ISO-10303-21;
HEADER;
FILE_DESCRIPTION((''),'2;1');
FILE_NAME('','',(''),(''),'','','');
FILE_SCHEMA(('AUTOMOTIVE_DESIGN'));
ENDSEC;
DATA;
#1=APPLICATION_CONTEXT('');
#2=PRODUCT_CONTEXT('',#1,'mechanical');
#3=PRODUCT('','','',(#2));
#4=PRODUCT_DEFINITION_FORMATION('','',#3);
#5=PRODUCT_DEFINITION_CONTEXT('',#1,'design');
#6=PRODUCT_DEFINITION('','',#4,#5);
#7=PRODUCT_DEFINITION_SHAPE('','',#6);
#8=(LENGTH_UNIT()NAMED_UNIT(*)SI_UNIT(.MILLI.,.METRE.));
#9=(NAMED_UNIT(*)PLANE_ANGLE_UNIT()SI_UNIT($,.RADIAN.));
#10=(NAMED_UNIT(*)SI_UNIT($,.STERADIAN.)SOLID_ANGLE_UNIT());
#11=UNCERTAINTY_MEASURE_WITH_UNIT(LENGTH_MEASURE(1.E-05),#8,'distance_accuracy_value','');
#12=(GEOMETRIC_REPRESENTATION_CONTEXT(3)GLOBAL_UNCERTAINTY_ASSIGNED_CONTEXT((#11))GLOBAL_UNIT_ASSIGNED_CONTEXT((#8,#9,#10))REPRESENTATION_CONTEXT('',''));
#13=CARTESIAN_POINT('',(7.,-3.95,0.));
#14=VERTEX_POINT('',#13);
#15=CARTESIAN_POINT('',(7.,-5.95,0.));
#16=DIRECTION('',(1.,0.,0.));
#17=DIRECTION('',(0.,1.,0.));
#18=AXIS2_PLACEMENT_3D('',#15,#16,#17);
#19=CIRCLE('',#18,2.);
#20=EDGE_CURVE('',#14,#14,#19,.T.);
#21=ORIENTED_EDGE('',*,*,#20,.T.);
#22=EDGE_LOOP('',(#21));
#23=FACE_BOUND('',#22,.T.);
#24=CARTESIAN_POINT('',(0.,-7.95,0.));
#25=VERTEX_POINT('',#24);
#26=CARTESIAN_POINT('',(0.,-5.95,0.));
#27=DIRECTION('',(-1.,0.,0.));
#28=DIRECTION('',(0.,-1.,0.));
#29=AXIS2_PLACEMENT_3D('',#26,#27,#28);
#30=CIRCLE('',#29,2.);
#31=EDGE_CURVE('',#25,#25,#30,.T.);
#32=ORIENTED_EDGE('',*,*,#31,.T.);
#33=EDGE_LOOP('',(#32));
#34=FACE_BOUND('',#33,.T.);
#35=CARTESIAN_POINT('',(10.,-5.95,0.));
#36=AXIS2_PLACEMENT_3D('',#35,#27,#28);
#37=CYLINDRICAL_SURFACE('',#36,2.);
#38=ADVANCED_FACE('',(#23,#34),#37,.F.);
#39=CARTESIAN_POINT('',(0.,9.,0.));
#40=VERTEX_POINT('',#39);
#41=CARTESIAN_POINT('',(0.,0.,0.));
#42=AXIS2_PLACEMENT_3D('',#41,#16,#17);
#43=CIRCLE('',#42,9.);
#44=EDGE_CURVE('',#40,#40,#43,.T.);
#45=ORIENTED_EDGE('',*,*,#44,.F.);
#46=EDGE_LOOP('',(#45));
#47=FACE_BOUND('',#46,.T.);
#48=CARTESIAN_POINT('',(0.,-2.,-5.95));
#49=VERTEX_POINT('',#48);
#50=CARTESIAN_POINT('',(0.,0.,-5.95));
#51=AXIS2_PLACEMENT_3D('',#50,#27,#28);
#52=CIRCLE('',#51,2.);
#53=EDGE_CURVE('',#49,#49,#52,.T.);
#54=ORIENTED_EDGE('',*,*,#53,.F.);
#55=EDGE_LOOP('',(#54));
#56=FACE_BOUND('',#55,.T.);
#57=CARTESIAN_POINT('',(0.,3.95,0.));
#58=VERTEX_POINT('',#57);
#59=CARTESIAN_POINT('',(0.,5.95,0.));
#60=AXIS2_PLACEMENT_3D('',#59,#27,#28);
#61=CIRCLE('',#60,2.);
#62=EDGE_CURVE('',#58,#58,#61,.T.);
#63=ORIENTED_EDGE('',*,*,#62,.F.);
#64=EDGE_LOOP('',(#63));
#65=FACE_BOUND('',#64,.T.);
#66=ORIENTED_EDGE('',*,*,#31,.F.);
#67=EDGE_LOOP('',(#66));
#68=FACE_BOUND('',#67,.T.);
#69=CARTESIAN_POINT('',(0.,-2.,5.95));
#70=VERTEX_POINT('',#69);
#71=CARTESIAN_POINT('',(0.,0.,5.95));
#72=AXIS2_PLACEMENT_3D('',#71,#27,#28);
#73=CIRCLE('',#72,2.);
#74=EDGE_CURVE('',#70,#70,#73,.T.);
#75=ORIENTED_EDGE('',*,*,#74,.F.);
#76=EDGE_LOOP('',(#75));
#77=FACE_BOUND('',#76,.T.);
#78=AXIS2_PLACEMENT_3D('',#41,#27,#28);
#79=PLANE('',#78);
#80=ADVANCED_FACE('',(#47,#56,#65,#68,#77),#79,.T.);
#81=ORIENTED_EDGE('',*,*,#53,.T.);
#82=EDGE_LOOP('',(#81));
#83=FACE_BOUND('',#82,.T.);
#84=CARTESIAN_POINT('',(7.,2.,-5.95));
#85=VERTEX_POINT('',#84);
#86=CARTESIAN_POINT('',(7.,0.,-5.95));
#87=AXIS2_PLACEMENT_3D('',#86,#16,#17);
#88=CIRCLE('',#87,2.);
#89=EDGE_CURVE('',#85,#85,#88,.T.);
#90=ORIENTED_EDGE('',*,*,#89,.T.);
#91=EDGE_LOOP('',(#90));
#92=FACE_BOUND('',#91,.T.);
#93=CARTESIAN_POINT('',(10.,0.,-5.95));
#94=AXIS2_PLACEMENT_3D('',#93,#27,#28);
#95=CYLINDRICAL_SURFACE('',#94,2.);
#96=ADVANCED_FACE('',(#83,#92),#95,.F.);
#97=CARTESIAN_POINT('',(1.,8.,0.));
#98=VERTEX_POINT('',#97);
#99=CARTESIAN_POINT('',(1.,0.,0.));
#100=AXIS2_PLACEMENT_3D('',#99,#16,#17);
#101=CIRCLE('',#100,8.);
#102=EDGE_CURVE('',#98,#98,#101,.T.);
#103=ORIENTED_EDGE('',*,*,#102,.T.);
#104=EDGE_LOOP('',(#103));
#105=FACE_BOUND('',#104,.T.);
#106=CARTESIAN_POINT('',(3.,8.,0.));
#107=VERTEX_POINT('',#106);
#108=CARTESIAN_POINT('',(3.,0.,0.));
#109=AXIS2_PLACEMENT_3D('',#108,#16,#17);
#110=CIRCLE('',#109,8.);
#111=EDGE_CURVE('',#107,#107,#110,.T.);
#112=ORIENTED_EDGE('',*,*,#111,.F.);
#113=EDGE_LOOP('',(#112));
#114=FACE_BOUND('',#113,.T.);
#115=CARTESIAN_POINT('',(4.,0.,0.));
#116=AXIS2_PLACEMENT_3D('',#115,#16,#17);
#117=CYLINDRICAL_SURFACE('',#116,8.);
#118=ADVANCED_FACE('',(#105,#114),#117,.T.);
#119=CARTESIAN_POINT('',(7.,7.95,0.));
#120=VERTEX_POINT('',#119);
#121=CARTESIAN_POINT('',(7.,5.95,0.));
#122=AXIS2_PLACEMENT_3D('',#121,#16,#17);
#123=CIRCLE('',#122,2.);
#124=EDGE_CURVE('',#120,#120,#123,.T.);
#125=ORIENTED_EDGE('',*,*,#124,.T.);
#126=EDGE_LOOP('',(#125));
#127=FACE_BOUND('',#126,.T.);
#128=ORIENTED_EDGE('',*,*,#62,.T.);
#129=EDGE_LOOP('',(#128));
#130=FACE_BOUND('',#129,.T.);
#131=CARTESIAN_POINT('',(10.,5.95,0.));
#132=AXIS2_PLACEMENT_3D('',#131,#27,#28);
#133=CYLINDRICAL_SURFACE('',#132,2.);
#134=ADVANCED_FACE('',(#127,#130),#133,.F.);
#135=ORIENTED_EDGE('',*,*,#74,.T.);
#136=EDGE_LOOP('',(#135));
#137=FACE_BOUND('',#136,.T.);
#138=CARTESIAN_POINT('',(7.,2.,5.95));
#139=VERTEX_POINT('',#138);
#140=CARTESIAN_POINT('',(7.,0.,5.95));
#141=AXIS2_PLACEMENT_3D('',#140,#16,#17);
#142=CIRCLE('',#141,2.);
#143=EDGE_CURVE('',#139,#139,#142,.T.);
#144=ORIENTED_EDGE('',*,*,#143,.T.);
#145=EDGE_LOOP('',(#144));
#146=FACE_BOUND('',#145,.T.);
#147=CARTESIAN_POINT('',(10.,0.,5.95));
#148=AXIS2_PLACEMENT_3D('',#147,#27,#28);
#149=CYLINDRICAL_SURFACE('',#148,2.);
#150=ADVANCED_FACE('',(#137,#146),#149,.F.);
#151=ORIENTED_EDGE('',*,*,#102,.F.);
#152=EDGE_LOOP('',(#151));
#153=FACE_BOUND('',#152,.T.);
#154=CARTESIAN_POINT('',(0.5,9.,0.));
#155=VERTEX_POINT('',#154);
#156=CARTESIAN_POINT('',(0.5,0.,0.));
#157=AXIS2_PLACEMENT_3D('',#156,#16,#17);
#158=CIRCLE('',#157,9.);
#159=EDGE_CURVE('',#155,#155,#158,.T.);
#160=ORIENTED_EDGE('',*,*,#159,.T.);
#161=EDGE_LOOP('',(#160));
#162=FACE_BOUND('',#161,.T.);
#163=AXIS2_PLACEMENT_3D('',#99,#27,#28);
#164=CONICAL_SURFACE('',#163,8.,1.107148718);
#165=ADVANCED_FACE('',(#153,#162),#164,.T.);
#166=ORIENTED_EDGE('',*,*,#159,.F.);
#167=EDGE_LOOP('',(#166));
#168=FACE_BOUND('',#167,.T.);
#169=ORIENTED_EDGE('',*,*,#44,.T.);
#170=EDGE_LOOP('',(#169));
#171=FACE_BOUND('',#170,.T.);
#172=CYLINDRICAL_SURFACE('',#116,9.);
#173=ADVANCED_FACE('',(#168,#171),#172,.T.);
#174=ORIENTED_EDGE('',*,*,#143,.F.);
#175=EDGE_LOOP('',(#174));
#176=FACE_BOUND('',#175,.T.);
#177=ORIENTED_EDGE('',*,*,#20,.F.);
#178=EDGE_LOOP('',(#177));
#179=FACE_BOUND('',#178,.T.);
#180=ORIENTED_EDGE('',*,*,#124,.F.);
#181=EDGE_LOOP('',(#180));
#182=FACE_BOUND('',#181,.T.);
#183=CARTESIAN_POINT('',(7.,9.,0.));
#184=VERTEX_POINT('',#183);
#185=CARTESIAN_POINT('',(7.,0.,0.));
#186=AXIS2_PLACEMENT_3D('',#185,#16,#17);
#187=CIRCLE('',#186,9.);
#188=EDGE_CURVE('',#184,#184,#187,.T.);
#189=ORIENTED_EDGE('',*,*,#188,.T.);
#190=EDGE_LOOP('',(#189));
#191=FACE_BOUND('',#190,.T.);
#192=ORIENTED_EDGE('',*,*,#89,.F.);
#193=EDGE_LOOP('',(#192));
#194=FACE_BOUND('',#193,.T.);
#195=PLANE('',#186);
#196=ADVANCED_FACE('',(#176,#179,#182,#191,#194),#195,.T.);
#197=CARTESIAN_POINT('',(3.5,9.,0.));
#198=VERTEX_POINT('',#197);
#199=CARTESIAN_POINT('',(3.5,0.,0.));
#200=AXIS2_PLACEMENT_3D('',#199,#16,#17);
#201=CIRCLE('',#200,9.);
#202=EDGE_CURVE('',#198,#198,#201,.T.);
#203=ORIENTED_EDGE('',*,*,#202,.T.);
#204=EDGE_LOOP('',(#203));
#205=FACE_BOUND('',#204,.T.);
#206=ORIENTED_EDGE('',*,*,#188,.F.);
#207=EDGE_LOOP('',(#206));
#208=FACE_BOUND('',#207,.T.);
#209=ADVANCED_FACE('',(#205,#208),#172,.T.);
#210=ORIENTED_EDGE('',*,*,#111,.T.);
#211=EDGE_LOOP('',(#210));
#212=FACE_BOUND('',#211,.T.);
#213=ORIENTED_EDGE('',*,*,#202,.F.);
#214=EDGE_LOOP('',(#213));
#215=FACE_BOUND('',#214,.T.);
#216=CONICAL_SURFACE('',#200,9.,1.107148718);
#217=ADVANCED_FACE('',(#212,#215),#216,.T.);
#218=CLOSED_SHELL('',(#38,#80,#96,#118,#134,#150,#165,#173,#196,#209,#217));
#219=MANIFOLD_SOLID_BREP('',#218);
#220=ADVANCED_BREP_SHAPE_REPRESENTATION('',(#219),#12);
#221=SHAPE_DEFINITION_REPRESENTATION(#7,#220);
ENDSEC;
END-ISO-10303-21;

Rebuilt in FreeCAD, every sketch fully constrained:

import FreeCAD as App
import Part
import Sketcher
Q = App.Units.Quantity

doc = App.newDocument("Part")
body = doc.addObject("PartDesign::Body", "Body")

sketch1 = body.newObject("Sketcher::SketchObject", "Sketch")
sketch1.AttachmentSupport = (doc.getObject("XY_Plane"), [""])
sketch1.MapMode = "FlatFace"
sketch1.addGeometry(Part.LineSegment(App.Vector(0, 9, 0), App.Vector(0, 0, 0)), False)
sketch1.addGeometry(Part.LineSegment(App.Vector(0, 0, 0), App.Vector(7, 0, 0)), False)
sketch1.addGeometry(Part.LineSegment(App.Vector(7, 0, 0), App.Vector(7, 9, 0)), False)
sketch1.addGeometry(Part.LineSegment(App.Vector(7, 9, 0), App.Vector(3.5, 9, 0)), False)
sketch1.addGeometry(Part.LineSegment(App.Vector(3.5, 9, 0), App.Vector(3, 8, 0)), False)
sketch1.addGeometry(Part.LineSegment(App.Vector(3, 8, 0), App.Vector(1, 8, 0)), False)
sketch1.addGeometry(Part.LineSegment(App.Vector(1, 8, 0), App.Vector(0.5, 9, 0)), False)
sketch1.addGeometry(Part.LineSegment(App.Vector(0.5, 9, 0), App.Vector(0, 9, 0)), False)
sketch1.addConstraint(Sketcher.Constraint("Coincident", 0, 2, 1, 1))
sketch1.addConstraint(Sketcher.Constraint("Coincident", 1, 2, 2, 1))
sketch1.addConstraint(Sketcher.Constraint("Coincident", 2, 2, 3, 1))
sketch1.addConstraint(Sketcher.Constraint("Coincident", 3, 2, 4, 1))
sketch1.addConstraint(Sketcher.Constraint("Coincident", 4, 2, 5, 1))
sketch1.addConstraint(Sketcher.Constraint("Coincident", 5, 2, 6, 1))
sketch1.addConstraint(Sketcher.Constraint("Coincident", 6, 2, 7, 1))
sketch1.addConstraint(Sketcher.Constraint("Coincident", 7, 2, 0, 1))
sketch1.addConstraint(Sketcher.Constraint("Vertical", 0))
sketch1.addConstraint(Sketcher.Constraint("Horizontal", 1))
sketch1.addConstraint(Sketcher.Constraint("Vertical", 2))
sketch1.addConstraint(Sketcher.Constraint("Horizontal", 3))
sketch1.addConstraint(Sketcher.Constraint("Horizontal", 5))
sketch1.addConstraint(Sketcher.Constraint("Horizontal", 7))
sketch1.addConstraint(Sketcher.Constraint("Coincident", 0, 2, -1, 1))
sketch1.addConstraint(Sketcher.Constraint("Horizontal", 3, 2, 6, 2))
sketch1.addConstraint(Sketcher.Constraint("Equal", 4, 6))
sketch1.addConstraint(Sketcher.Constraint("DistanceX", 1, 1, 1, 2, Q("7 mm")))
sketch1.addConstraint(Sketcher.Constraint("DistanceX", 5, 2, 5, 1, Q("2 mm")))
sketch1.addConstraint(Sketcher.Constraint("DistanceY", 0, 2, 0, 1, Q("9 mm")))
sketch1.addConstraint(Sketcher.Constraint("DistanceX", 3, 2, 3, 1, Q("3.5 mm")))
sketch1.addConstraint(Sketcher.Constraint("DistanceX", 7, 2, 7, 1, Q("0.5 mm")))
sketch1.addConstraint(Sketcher.Constraint("DistanceY", -1, 1, 4, 2, Q("8 mm")))
revolution = body.newObject("PartDesign::Revolution", "Revolution")
revolution.Profile = sketch1
revolution.ReferenceAxis = (sketch1, ["H_Axis"])
revolution.Angle = 360

sketch2 = body.newObject("Sketcher::SketchObject", "Sketch001")
sketch2.AttachmentSupport = (doc.getObject("YZ_Plane"), [""])
sketch2.MapMode = "FlatFace"
sketch2.addGeometry(Part.Circle(App.Vector(6, 0, 0), App.Vector(0, 0, 1), 2), False)
sketch2.addGeometry(Part.Circle(App.Vector(0, 6, 0), App.Vector(0, 0, 1), 2), False)
sketch2.addGeometry(Part.Circle(App.Vector(-6, 0, 0), App.Vector(0, 0, 1), 2), False)
sketch2.addGeometry(Part.Circle(App.Vector(0, -6, 0), App.Vector(0, 0, 1), 2), False)
sketch2.addConstraint(Sketcher.Constraint("Equal", 0, 1))
sketch2.addConstraint(Sketcher.Constraint("Equal", 1, 2))
sketch2.addConstraint(Sketcher.Constraint("Equal", 2, 3))
sketch2.addConstraint(Sketcher.Constraint("Symmetric", 0, 3, 2, 3, -1, 1))
sketch2.addConstraint(Sketcher.Constraint("Symmetric", 1, 3, 3, 3, -1, 1))
sketch2.addConstraint(Sketcher.Constraint("PointOnObject", 0, 3, -1))
sketch2.addConstraint(Sketcher.Constraint("PointOnObject", 1, 3, -2))
sketch2.addConstraint(Sketcher.Constraint("Diameter", 0, Q("4 mm")))
sketch2.addConstraint(Sketcher.Constraint("DistanceX", 2, 3, 0, 3, Q("11.9 mm")))
sketch2.addConstraint(Sketcher.Constraint("DistanceY", 3, 3, 1, 3, Q("11.9 mm")))
pocket1 = body.newObject("PartDesign::Pocket", "Pocket")
pocket1.Profile = sketch2
pocket1.Length = 10
pocket1.Reversed = True

doc.recompute()
